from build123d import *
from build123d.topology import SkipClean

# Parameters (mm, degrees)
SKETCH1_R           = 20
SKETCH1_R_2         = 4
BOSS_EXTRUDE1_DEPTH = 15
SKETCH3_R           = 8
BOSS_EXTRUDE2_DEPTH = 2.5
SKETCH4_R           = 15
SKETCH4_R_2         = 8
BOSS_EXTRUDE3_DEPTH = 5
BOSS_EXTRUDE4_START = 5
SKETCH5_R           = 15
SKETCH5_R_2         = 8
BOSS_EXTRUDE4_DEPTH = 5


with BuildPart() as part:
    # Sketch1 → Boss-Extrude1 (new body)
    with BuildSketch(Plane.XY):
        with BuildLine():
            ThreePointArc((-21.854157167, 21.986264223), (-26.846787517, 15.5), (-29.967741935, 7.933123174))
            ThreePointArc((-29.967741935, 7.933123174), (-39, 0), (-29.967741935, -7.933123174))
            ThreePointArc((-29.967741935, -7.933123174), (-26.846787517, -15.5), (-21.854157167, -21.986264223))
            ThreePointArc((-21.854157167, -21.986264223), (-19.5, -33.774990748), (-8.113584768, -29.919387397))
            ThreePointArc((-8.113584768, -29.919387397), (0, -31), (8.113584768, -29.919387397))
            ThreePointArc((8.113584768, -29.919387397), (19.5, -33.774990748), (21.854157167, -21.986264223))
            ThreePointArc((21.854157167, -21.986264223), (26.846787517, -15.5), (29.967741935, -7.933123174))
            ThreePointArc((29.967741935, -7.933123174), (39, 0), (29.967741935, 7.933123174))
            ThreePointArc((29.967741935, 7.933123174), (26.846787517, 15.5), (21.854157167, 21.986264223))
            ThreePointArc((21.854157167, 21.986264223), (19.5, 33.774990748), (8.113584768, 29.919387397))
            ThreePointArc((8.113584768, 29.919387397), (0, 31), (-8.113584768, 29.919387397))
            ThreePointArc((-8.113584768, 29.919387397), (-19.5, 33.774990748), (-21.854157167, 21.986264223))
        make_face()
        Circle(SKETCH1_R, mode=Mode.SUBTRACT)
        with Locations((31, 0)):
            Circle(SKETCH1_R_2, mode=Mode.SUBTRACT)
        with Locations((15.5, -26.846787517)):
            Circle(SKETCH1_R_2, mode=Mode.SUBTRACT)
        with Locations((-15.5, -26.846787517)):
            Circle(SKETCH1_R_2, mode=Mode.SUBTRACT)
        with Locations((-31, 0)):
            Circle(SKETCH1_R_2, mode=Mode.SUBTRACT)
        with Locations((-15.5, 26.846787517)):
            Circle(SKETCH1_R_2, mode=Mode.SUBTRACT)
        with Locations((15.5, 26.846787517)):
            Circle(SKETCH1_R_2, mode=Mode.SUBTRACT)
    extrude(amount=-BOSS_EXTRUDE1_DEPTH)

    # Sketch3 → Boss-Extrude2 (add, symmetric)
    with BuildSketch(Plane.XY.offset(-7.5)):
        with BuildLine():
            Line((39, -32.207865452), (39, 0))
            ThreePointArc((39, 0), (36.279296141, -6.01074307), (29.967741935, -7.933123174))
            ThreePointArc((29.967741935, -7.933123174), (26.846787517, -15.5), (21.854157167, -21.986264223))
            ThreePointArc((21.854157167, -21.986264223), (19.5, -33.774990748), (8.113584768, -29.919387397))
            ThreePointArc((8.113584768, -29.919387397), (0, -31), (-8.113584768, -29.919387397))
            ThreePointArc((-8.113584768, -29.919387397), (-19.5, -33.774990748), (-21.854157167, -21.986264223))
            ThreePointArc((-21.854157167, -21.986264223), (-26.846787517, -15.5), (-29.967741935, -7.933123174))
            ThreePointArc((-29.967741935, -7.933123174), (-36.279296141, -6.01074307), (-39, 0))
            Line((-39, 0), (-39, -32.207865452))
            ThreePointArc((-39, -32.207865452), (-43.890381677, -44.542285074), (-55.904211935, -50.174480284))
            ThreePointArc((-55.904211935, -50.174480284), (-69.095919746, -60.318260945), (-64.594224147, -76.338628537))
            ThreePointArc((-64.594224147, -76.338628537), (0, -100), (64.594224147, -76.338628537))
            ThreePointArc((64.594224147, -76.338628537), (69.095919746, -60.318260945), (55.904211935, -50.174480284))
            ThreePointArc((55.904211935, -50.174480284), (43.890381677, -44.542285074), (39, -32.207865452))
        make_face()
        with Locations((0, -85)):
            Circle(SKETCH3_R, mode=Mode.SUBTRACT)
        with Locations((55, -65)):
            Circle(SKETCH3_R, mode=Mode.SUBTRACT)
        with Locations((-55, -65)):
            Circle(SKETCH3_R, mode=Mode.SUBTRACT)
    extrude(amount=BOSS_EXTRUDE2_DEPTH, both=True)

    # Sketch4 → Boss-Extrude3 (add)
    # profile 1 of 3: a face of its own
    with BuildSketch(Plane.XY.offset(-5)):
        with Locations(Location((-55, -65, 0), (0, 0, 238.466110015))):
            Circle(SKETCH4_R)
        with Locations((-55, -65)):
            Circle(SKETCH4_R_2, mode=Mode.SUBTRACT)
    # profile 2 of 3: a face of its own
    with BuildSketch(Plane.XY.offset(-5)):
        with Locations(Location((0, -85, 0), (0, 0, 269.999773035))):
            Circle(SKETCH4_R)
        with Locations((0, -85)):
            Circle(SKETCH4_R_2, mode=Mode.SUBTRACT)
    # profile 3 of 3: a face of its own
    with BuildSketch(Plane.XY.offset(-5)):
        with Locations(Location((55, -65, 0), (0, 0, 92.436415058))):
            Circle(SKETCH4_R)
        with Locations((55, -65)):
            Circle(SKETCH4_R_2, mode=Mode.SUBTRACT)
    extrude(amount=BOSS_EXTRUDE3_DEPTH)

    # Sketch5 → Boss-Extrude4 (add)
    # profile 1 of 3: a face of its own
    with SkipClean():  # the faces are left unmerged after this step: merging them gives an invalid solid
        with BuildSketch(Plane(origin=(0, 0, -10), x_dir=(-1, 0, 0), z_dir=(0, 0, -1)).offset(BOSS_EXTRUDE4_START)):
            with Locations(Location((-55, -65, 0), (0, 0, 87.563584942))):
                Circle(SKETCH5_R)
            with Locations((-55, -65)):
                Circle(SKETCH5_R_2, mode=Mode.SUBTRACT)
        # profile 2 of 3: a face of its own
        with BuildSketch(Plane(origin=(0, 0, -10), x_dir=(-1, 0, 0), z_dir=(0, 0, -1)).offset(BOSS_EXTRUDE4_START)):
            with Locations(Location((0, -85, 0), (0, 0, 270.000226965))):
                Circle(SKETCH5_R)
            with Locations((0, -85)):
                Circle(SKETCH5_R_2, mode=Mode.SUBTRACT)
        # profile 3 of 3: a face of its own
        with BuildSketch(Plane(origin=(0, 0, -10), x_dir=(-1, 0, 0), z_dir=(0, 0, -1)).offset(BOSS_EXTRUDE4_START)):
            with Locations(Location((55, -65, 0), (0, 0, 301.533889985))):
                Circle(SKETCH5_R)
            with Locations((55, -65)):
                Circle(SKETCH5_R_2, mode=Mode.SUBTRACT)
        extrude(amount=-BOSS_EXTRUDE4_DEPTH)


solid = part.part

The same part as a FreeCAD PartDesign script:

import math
import FreeCAD as App
import Part
import Sketcher
from FreeCAD import Vector

doc = App.newDocument("Part")
body = doc.addObject("PartDesign::Body", "Body")

# Sketch on XY plane
sketch1 = body.newObject("Sketcher::SketchObject", "Sketch")
sketch1.AttachmentSupport = (doc.getObject("XY_Plane"), [""])
sketch1.MapMode = "FlatFace"
sketch1.addGeometry([
    Part.ArcOfCircle(Part.Circle(Vector(0, 0, 0), Vector(0, 0, 1), 31), math.radians(134.827348), math.radians(165.172652)),  # 0
    Part.ArcOfCircle(Part.Circle(Vector(-31, 0, 0), Vector(0, 0, 1), 8), math.radians(82.586326), math.radians(277.413674)),  # 1
    Part.ArcOfCircle(Part.Circle(Vector(0, 0, 0), Vector(0, 0, 1), 31), math.radians(-165.172652), math.radians(-134.827348)),  # 2
    Part.ArcOfCircle(Part.Circle(Vector(-15.5, -26.846788, 0), Vector(0, 0, 1), 8), math.radians(142.586326), math.radians(337.413674)),  # 3
    Part.ArcOfCircle(Part.Circle(Vector(0, 0, 0), Vector(0, 0, 1), 31), math.radians(-105.172652), math.radians(-74.827348)),  # 4
    Part.ArcOfCircle(Part.Circle(Vector(15.5, -26.846788, 0), Vector(0, 0, 1), 8), math.radians(-157.413674), math.radians(37.413674)),  # 5
    Part.ArcOfCircle(Part.Circle(Vector(0, 0, 0), Vector(0, 0, 1), 31), math.radians(-45.172652), math.radians(-14.827348)),  # 6
    Part.ArcOfCircle(Part.Circle(Vector(31, 0, 0), Vector(0, 0, 1), 8), math.radians(-97.413674), math.radians(97.413674)),  # 7
    Part.ArcOfCircle(Part.Circle(Vector(0, 0, 0), Vector(0, 0, 1), 31), math.radians(14.827348), math.radians(45.172652)),  # 8
    Part.ArcOfCircle(Part.Circle(Vector(15.5, 26.846788, 0), Vector(0, 0, 1), 8), math.radians(-37.413674), math.radians(157.413674)),  # 9
    Part.ArcOfCircle(Part.Circle(Vector(0, 0, 0), Vector(0, 0, 1), 31), math.radians(74.827348), math.radians(105.172652)),  # 10
    Part.ArcOfCircle(Part.Circle(Vector(-15.5, 26.846788, 0), Vector(0, 0, 1), 8), math.radians(22.586326), math.radians(217.413674)),  # 11
    Part.Circle(Vector(-15.5, -26.846788, 0), Vector(0, 0, 1), 4),  # 12
    Part.Circle(Vector(15.5, -26.846788, 0), Vector(0, 0, 1), 4),  # 13
    Part.Circle(Vector(-31, 0, 0), Vector(0, 0, 1), 4),  # 14
    Part.Circle(Vector(-15.5, 26.846788, 0), Vector(0, 0, 1), 4),  # 15
    Part.Circle(Vector(0, 0, 0), Vector(0, 0, 1), 20),  # 16
    Part.Circle(Vector(31, 0, 0), Vector(0, 0, 1), 4),  # 17
    Part.Circle(Vector(15.5, 26.846788, 0), Vector(0, 0, 1), 4),  # 18
], False)
sketch1.addConstraint([
    Sketcher.Constraint("Coincident", 0, 2, 1, 1),
    Sketcher.Constraint("Coincident", 1, 2, 2, 1),
    Sketcher.Constraint("Coincident", 2, 2, 3, 1),
    Sketcher.Constraint("Coincident", 3, 2, 4, 1),
    Sketcher.Constraint("Coincident", 4, 2, 5, 1),
    Sketcher.Constraint("Coincident", 5, 2, 6, 1),
    Sketcher.Constraint("Coincident", 6, 2, 7, 1),
    Sketcher.Constraint("Coincident", 7, 2, 8, 1),
    Sketcher.Constraint("Coincident", 8, 2, 9, 1),
    Sketcher.Constraint("Coincident", 9, 2, 10, 1),
    Sketcher.Constraint("Coincident", 10, 2, 11, 1),
    Sketcher.Constraint("Coincident", 11, 2, 0, 1),
    Sketcher.Constraint("Coincident", 0, 3, -1, 1),
    Sketcher.Constraint("Coincident", 2, 3, -1, 1),
    Sketcher.Constraint("Coincident", 4, 3, -1, 1),
    Sketcher.Constraint("Coincident", 6, 3, -1, 1),
    Sketcher.Constraint("Coincident", 8, 3, -1, 1),
    Sketcher.Constraint("Coincident", 10, 3, -1, 1),
    Sketcher.Constraint("Coincident", 16, 3, -1, 1),
    Sketcher.Constraint("Coincident", 12, 3, 3, 3),
    Sketcher.Constraint("Coincident", 13, 3, 5, 3),
    Sketcher.Constraint("Coincident", 14, 3, 1, 3),
    Sketcher.Constraint("Coincident", 15, 3, 11, 3),
    Sketcher.Constraint("Coincident", 17, 3, 7, 3),
    Sketcher.Constraint("Coincident", 18, 3, 9, 3),
    Sketcher.Constraint("Equal", 0, 2),
    Sketcher.Constraint("Equal", 1, 3),
    Sketcher.Constraint("Equal", 2, 4),
    Sketcher.Constraint("Equal", 3, 5),
    Sketcher.Constraint("Equal", 4, 6),
    Sketcher.Constraint("Equal", 5, 7),
    Sketcher.Constraint("Equal", 6, 8),
    Sketcher.Constraint("Equal", 7, 9),
    Sketcher.Constraint("Equal", 8, 10),
    Sketcher.Constraint("Equal", 9, 11),
    Sketcher.Constraint("Equal", 12, 13),
    Sketcher.Constraint("Equal", 13, 14),
    Sketcher.Constraint("Equal", 14, 15),
    Sketcher.Constraint("Equal", 15, 17),
    Sketcher.Constraint("Equal", 17, 18),
    Sketcher.Constraint("Symmetric", 1, 3, 7, 3, -1, 1),
    Sketcher.Constraint("Symmetric", 3, 3, 9, 3, -1, 1),
    Sketcher.Constraint("Symmetric", 5, 3, 11, 3, -1, 1),
    Sketcher.Constraint("Symmetric", 3, 3, 5, 3, -2),
    Sketcher.Constraint("PointOnObject", 1, 3, -1),
    Sketcher.Constraint("Diameter", 12, 8.0),
    Sketcher.Constraint("Diameter", 16, 40.0),
    Sketcher.Constraint("Radius", 0, 31.0),
    Sketcher.Constraint("Radius", 1, 8.0),
    Sketcher.Constraint("DistanceX", 1, 3, -1, 1, 31.0),
    Sketcher.Constraint("DistanceX", 3, 3, 5, 3, 31.0),
    Sketcher.Constraint("DistanceY", 3, 2, 3, 3, 3.0726),
])
pad1 = body.newObject("PartDesign::Pad", "Pad")
pad1.Profile = sketch1
pad1.Length = 15
pad1.Reversed = True

# Sketch on XY plane
sketch2 = body.newObject("Sketcher::SketchObject", "Sketch001")
sketch2.AttachmentSupport = (doc.getObject("XY_Plane"), [""])
sketch2.MapMode = "FlatFace"
sketch2.AttachmentOffset = App.Placement(Vector(0, 0, -7.5), App.Rotation())
sketch2.addGeometry([
    Part.LineSegment(Vector(39, -32.207865, 0), Vector(39, 0, 0)),  # 0
    Part.ArcOfCircle(Part.Circle(Vector(31, 0, 0), Vector(0, 0, 1), 8), math.radians(-97.413674), math.radians(0)),  # 1
    Part.ArcOfCircle(Part.Circle(Vector(0, 0, 0), Vector(0, 0, 1), 31), math.radians(-45.172652), math.radians(-14.827348)),  # 2
    Part.ArcOfCircle(Part.Circle(Vector(15.5, -26.846788, 0), Vector(0, 0, 1), 8), math.radians(-157.413674), math.radians(37.413674)),  # 3
    Part.ArcOfCircle(Part.Circle(Vector(0, 0, 0), Vector(0, 0, 1), 31), math.radians(-105.172652), math.radians(-74.827348)),  # 4
    Part.ArcOfCircle(Part.Circle(Vector(-15.5, -26.846788, 0), Vector(0, 0, 1), 8), math.radians(142.586326), math.radians(337.413674)),  # 5
    Part.ArcOfCircle(Part.Circle(Vector(0, 0, 0), Vector(0, 0, 1), 31), math.radians(-165.172652), math.radians(-134.827348)),  # 6
    Part.ArcOfCircle(Part.Circle(Vector(-31, 0, 0), Vector(0, 0, 1), 8), math.radians(-180), math.radians(-82.586326)),  # 7
    Part.LineSegment(Vector(-39, 0, 0), Vector(-39, -32.207865, 0)),  # 8
    Part.ArcOfCircle(Part.Circle(Vector(-57, -32.207865, 0), Vector(0, 0, 1), 18), math.radians(-86.50984), math.radians(0)),  # 9
    Part.ArcOfCircle(Part.Circle(Vector(-55, -65, 0), Vector(0, 0, 1), 14.853068), math.radians(93.49016), math.radians(229.763642)),  # 10
    Part.ArcOfCircle(Part.Circle(Vector(0, 0, 0), Vector(0, 0, 1), 100), math.radians(-130.236358), math.radians(-49.763642)),  # 11
    Part.ArcOfCircle(Part.Circle(Vector(55, -65, 0), Vector(0, 0, 1), 14.853068), math.radians(-49.763642), math.radians(86.50984)),  # 12
    Part.ArcOfCircle(Part.Circle(Vector(57, -32.207865, 0), Vector(0, 0, 1), 18), math.radians(-180), math.radians(-93.49016)),  # 13
    Part.Circle(Vector(0, -85, 0), Vector(0, 0, 1), 8),  # 14
    Part.Circle(Vector(-55, -65, 0), Vector(0, 0, 1), 8),  # 15
    Part.Circle(Vector(55, -65, 0), Vector(0, 0, 1), 8),  # 16
], False)
sketch2.addConstraint([
    Sketcher.Constraint("Tangent", 0, 2, 1, 2),
    Sketcher.Constraint("Coincident", 1, 1, 2, 2),
    Sketcher.Constraint("Coincident", 2, 1, 3, 2),
    Sketcher.Constraint("Coincident", 3, 1, 4, 2),
    Sketcher.Constraint("Coincident", 4, 1, 5, 2),
    Sketcher.Constraint("Coincident", 5, 1, 6, 2),
    Sketcher.Constraint("Coincident", 6, 1, 7, 2),
    Sketcher.Constraint("Tangent", 7, 1, 8, 1),
    Sketcher.Constraint("Tangent", 8, 2, 9, 2),
    Sketcher.Constraint("Tangent", 9, 1, 10, 1),
    Sketcher.Constraint("Tangent", 10, 2, 11, 1),
    Sketcher.Constraint("Tangent", 11, 2, 12, 1),
    Sketcher.Constraint("Tangent", 12, 2, 13, 2),
    Sketcher.Constraint("Tangent", 13, 1, 0, 1),
    Sketcher.Constraint("Vertical", 0),
    Sketcher.Constraint("Vertical", 8),
    Sketcher.Constraint("Coincident", 2, 3, -1, 1),
    Sketcher.Constraint("Coincident", 4, 3, -1, 1),
    Sketcher.Constraint("Coincident", 6, 3, -1, 1),
    Sketcher.Constraint("Coincident", 11, 3, -1, 1),
    Sketcher.Constraint("Coincident", 15, 3, 10, 3),
    Sketcher.Constraint("Coincident", 16, 3, 12, 3),
    Sketcher.Constraint("Equal", 1, 3),
    Sketcher.Constraint("Equal", 2, 4),
    Sketcher.Constraint("Equal", 3, 5),
    Sketcher.Constraint("Equal", 4, 6),
    Sketcher.Constraint("Equal", 5, 7),
    Sketcher.Constraint("Equal", 10, 12),
    Sketcher.Constraint("Equal", 9, 13),
    Sketcher.Constraint("Equal", 7, 14),
    Sketcher.Constraint("Equal", 14, 15),
    Sketcher.Constraint("Equal", 15, 16),
    Sketcher.Constraint("Symmetric", 1, 3, 7, 3, -1, 1),
    Sketcher.Constraint("Symmetric", 3, 3, 5, 3, -2),
    Sketcher.Constraint("PointOnObject", 1, 3, -1),
    Sketcher.Constraint("PointOnObject", 14, 3, -2),
    Sketcher.Constraint("Horizontal", 10, 3, 12, 3),
    Sketcher.Constraint("Diameter", 14, 16.0),
    Sketcher.Constraint("Radius", 2, 31.0),
    Sketcher.Constraint("Radius", 9, 18.0),
    Sketcher.Constraint("Radius", 11, 100.0),
    Sketcher.Constraint("DistanceX", -1, 1, 1, 3, 31.0),
    Sketcher.Constraint("DistanceX", 10, 3, -1, 1, 55.0),
    Sketcher.Constraint("DistanceY", 10, 3, -1, 1, 65.0),
    Sketcher.Constraint("DistanceY", 14, 3, -1, 1, 85.0),
    Sketcher.Constraint("DistanceX", 5, 3, 3, 3, 31.0),
    Sketcher.Constraint("DistanceY", 3, 1, 3, 3, 3.0726),
])
pad2 = body.newObject("PartDesign::Pad", "Pad001")
pad2.Profile = sketch2
pad2.Length = 5
pad2.Midplane = True

# Sketch on XY plane
sketch3 = body.newObject("Sketcher::SketchObject", "Sketch002")
sketch3.AttachmentSupport = (doc.getObject("XY_Plane"), [""])
sketch3.MapMode = "FlatFace"
sketch3.AttachmentOffset = App.Placement(Vector(0, 0, -5), App.Rotation())
sketch3.addGeometry([
    Part.Circle(Vector(-55, -65, 0), Vector(0, 0, 1), 15),  # 0
    Part.Circle(Vector(-55, -65, 0), Vector(0, 0, 1), 8),  # 1
    Part.Circle(Vector(0, -85, 0), Vector(0, 0, 1), 15),  # 2
    Part.Circle(Vector(0, -85, 0), Vector(0, 0, 1), 8),  # 3
    Part.Circle(Vector(55, -65, 0), Vector(0, 0, 1), 15),  # 4
    Part.Circle(Vector(55, -65, 0), Vector(0, 0, 1), 8),  # 5
], False)
sketch3.addConstraint([
    Sketcher.Constraint("Coincident", 1, 3, 0, 3),
    Sketcher.Constraint("Coincident", 3, 3, 2, 3),
    Sketcher.Constraint("Coincident", 5, 3, 4, 3),
    Sketcher.Constraint("Equal", 0, 2),
    Sketcher.Constraint("Equal", 1, 3),
    Sketcher.Constraint("Equal", 2, 4),
    Sketcher.Constraint("Equal", 3, 5),
    Sketcher.Constraint("Symmetric", 0, 3, 4, 3, -2),
    Sketcher.Constraint("PointOnObject", 2, 3, -2),
    Sketcher.Constraint("Diameter", 0, 30.0),
    Sketcher.Constraint("Diameter", 1, 16.0),
    Sketcher.Constraint("DistanceX", 0, 3, -1, 1, 55.0),
    Sketcher.Constraint("DistanceY", 0, 3, -1, 1, 65.0),
    Sketcher.Constraint("DistanceY", 2, 3, -1, 1, 85.0),
])
pad3 = body.newObject("PartDesign::Pad", "Pad002")
pad3.Profile = sketch3
pad3.Length = 5

# Sketch on XY plane
sketch4 = body.newObject("Sketcher::SketchObject", "Sketch003")
sketch4.AttachmentSupport = (doc.getObject("XY_Plane"), [""])
sketch4.MapMode = "FlatFace"
sketch4.AttachmentOffset = App.Placement(Vector(0, 0, -15), App.Rotation())
sketch4.addGeometry([
    Part.Circle(Vector(55, -65, 0), Vector(0, 0, 1), 15),  # 0
    Part.Circle(Vector(55, -65, 0), Vector(0, 0, 1), 8),  # 1
    Part.Circle(Vector(0, -85, 0), Vector(0, 0, 1), 15),  # 2
    Part.Circle(Vector(0, -85, 0), Vector(0, 0, 1), 8),  # 3
    Part.Circle(Vector(-55, -65, 0), Vector(0, 0, 1), 15),  # 4
    Part.Circle(Vector(-55, -65, 0), Vector(0, 0, 1), 8),  # 5
], False)
sketch4.addConstraint([
    Sketcher.Constraint("Coincident", 1, 3, 0, 3),
    Sketcher.Constraint("Coincident", 3, 3, 2, 3),
    Sketcher.Constraint("Coincident", 5, 3, 4, 3),
    Sketcher.Constraint("Equal", 0, 2),
    Sketcher.Constraint("Equal", 1, 3),
    Sketcher.Constraint("Equal", 2, 4),
    Sketcher.Constraint("Equal", 3, 5),
    Sketcher.Constraint("Symmetric", 0, 3, 4, 3, -2),
    Sketcher.Constraint("PointOnObject", 2, 3, -2),
    Sketcher.Constraint("Diameter", 0, 30.0),
    Sketcher.Constraint("Diameter", 1, 16.0),
    Sketcher.Constraint("DistanceX", -1, 1, 0, 3, 55.0),
    Sketcher.Constraint("DistanceY", 0, 3, -1, 1, 65.0),
    Sketcher.Constraint("DistanceY", 2, 3, -1, 1, 85.0),
])
pad4 = body.newObject("PartDesign::Pad", "Pad003")
pad4.Profile = sketch4
pad4.Length = 5

doc.recompute()
